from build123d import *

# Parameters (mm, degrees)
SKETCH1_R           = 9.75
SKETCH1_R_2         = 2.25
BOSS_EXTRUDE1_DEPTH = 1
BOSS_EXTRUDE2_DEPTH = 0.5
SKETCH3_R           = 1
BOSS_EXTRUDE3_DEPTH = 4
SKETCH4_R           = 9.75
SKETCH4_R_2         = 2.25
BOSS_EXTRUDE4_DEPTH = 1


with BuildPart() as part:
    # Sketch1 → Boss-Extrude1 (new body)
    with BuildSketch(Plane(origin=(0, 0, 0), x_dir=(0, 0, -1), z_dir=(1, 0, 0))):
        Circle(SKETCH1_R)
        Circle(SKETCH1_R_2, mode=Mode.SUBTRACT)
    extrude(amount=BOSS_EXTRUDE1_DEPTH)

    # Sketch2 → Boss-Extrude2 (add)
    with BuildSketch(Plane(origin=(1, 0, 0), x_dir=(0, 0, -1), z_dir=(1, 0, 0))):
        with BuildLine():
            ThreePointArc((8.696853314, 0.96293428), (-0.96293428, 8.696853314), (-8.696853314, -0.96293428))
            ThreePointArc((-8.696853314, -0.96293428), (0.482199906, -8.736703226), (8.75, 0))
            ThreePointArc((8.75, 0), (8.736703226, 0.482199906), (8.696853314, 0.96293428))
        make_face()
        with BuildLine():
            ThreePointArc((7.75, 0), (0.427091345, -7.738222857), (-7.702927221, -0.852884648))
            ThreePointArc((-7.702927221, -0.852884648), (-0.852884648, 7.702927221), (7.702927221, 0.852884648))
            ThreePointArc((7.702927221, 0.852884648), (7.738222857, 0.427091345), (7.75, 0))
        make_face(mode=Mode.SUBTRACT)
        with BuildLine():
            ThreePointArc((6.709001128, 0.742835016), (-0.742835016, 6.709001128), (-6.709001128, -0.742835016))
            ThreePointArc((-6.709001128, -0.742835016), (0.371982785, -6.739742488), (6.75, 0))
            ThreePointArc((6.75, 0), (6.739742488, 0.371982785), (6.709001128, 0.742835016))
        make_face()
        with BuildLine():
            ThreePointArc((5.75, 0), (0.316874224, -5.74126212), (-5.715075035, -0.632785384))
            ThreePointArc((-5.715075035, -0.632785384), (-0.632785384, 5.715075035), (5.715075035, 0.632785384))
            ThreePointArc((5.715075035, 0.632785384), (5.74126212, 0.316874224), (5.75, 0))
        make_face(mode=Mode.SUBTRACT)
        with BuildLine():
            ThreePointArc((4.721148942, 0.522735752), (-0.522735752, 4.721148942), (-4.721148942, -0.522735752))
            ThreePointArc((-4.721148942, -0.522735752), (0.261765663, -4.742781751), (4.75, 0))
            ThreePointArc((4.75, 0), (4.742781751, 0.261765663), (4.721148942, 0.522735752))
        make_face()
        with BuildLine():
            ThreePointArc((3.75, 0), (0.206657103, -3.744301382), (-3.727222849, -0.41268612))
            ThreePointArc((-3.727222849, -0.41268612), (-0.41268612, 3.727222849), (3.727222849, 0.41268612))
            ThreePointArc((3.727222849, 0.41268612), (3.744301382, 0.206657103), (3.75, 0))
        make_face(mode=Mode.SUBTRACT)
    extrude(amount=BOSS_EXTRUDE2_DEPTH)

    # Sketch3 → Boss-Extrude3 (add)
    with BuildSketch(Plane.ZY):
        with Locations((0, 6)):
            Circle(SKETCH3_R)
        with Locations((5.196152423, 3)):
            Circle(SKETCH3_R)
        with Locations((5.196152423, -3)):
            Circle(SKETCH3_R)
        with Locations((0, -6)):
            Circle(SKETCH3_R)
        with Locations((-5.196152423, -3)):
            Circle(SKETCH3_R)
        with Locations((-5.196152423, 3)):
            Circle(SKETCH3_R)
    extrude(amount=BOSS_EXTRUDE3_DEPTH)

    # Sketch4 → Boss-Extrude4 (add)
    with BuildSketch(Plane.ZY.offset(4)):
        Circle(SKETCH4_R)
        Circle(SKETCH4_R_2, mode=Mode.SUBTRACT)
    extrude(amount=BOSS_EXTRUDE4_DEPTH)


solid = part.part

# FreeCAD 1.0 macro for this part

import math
import FreeCAD as App
import Part
import Sketcher
Q = App.Units.Quantity

doc = App.newDocument("Part")
params = doc.addObject("Spreadsheet::Sheet", "Params")
for row, (alias, value) in enumerate([
    ("sketch1_diameter", "19.5 mm"),
    ("sketch1_diameter2", "4.5 mm"),
    ("pad1_length", "1 mm"),
    ("sketch2_radius", "8.75 mm"),
    ("sketch2_radius2", "7.75 mm"),
    ("sketch2_radius3", "6.75 mm"),
    ("sketch2_radius4", "5.75 mm"),
    ("sketch2_radius5", "4.75 mm"),
    ("pad2_length", "0.5 mm"),
    ("sketch3_diameter", "2 mm"),
    ("pad3_length", "4 mm"),
    ("sketch4_diameter", "19.5 mm"),
    ("sketch4_diameter2", "4.5 mm"),
    ("pad4_length", "1 mm"),
], start=1):
    params.set(f"A{row}", alias)
    params.set(f"B{row}", "=" + value)
    params.setAlias(f"B{row}", alias)

body = doc.addObject("PartDesign::Body", "Body")

sketch1 = body.newObject("Sketcher::SketchObject", "Sketch")
sketch1.AttachmentSupport = (doc.getObject("YZ_Plane"), [""])
sketch1.MapMode = "FlatFace"
sketch1.addGeometry(Part.Circle(App.Vector(0, 0, 0), App.Vector(0, 0, 1), 9.8), False)
sketch1.addGeometry(Part.Circle(App.Vector(0, 0, 0), App.Vector(0, 0, 1), 2.2), False)
sketch1.addConstraint(Sketcher.Constraint("Coincident", 0, 3, -1, 1))
sketch1.addConstraint(Sketcher.Constraint("Coincident", 1, 3, -1, 1))
sketch1.addConstraint(Sketcher.Constraint("Diameter", 0, Q("19.5 mm")))
sketch1.addConstraint(Sketcher.Constraint("Diameter", 1, Q("4.5 mm")))
sketch1.setExpression("Constraints[2]", "Params.sketch1_diameter")
sketch1.setExpression("Constraints[3]", "Params.sketch1_diameter2")
pad1 = body.newObject("PartDesign::Pad", "Pad")
pad1.Profile = sketch1
pad1.setExpression("Length", "Params.pad1_length")

sketch2 = body.newObject("Sketcher::SketchObject", "Sketch001")
sketch2.AttachmentSupport = (doc.getObject("YZ_Plane"), [""])
sketch2.MapMode = "FlatFace"
sketch2.AttachmentOffset = App.Placement(App.Vector(0, 0, 1), App.Rotation())
sketch2.addGeometry(Part.ArcOfCircle(Part.Circle(App.Vector(0, 0, 0), App.Vector(0, 0, 1), 8.75), math.radians(-84), math.radians(96)), False)
sketch2.addGeometry(Part.ArcOfCircle(Part.Circle(App.Vector(0, 0, 0), App.Vector(0, 0, 1), 8.75), math.radians(96), math.radians(270)), False)
sketch2.addGeometry(Part.ArcOfCircle(Part.Circle(App.Vector(0, 0, 0), App.Vector(0, 0, 1), 8.75), math.radians(-90), math.radians(-83.68)), False)
sketch2.addGeometry(Part.ArcOfCircle(Part.Circle(App.Vector(0, 0, 0), App.Vector(0, 0, 1), 7.75), math.radians(-90), math.radians(-83.68)), False)
sketch2.addGeometry(Part.ArcOfCircle(Part.Circle(App.Vector(0, 0, 0), App.Vector(0, 0, 1), 7.75), math.radians(96), math.radians(270)), False)
sketch2.addGeometry(Part.ArcOfCircle(Part.Circle(App.Vector(0, 0, 0), App.Vector(0, 0, 1), 7.75), math.radians(-84), math.radians(96)), False)
sketch2.addGeometry(Part.ArcOfCircle(Part.Circle(App.Vector(0, 0, 0), App.Vector(0, 0, 1), 6.75), math.radians(-84), math.radians(96)), False)
sketch2.addGeometry(Part.ArcOfCircle(Part.Circle(App.Vector(0, 0, 0), App.Vector(0, 0, 1), 6.75), math.radians(96), math.radians(270)), False)
sketch2.addGeometry(Part.ArcOfCircle(Part.Circle(App.Vector(0, 0, 0), App.Vector(0, 0, 1), 6.75), math.radians(-90), math.radians(-83.68)), False)
sketch2.addGeometry(Part.ArcOfCircle(Part.Circle(App.Vector(0, 0, 0), App.Vector(0, 0, 1), 5.75), math.radians(-90), math.radians(-83.68)), False)
sketch2.addGeometry(Part.ArcOfCircle(Part.Circle(App.Vector(0, 0, 0), App.Vector(0, 0, 1), 5.75), math.radians(96), math.radians(270)), False)
sketch2.addGeometry(Part.ArcOfCircle(Part.Circle(App.Vector(0, 0, 0), App.Vector(0, 0, 1), 5.75), math.radians(-84), math.radians(96)), False)
sketch2.addGeometry(Part.ArcOfCircle(Part.Circle(App.Vector(0, 0, 0), App.Vector(0, 0, 1), 4.75), math.radians(-84), math.radians(96)), False)
sketch2.addGeometry(Part.ArcOfCircle(Part.Circle(App.Vector(0, 0, 0), App.Vector(0, 0, 1), 4.75), math.radians(96), math.radians(270)), False)
sketch2.addGeometry(Part.ArcOfCircle(Part.Circle(App.Vector(0, 0, 0), App.Vector(0, 0, 1), 4.75), math.radians(-90), math.radians(-83.68)), False)
sketch2.addGeometry(Part.ArcOfCircle(Part.Circle(App.Vector(0, 0, 0), App.Vector(0, 0, 1), 3.75), math.radians(-90), math.radians(-83.68)), False)
sketch2.addGeometry(Part.ArcOfCircle(Part.Circle(App.Vector(0, 0, 0), App.Vector(0, 0, 1), 3.75), math.radians(96), math.radians(270)), False)
sketch2.addGeometry(Part.ArcOfCircle(Part.Circle(App.Vector(0, 0, 0), App.Vector(0, 0, 1), 3.75), math.radians(-84), math.radians(96)), False)
sketch2.addConstraint(Sketcher.Constraint("Tangent", 0, 2, 1, 1))
sketch2.addConstraint(Sketcher.Constraint("Tangent", 1, 2, 2, 1))
sketch2.addConstraint(Sketcher.Constraint("Tangent", 2, 2, 0, 1))
sketch2.addConstraint(Sketcher.Constraint("Tangent", 3, 1, 4, 2))
sketch2.addConstraint(Sketcher.Constraint("Tangent", 4, 1, 5, 2))
sketch2.addConstraint(Sketcher.Constraint("Tangent", 5, 1, 3, 2))
sketch2.addConstraint(Sketcher.Constraint("Tangent", 6, 2, 7, 1))
sketch2.addConstraint(Sketcher.Constraint("Tangent", 7, 2, 8, 1))
sketch2.addConstraint(Sketcher.Constraint("Tangent", 8, 2, 6, 1))
sketch2.addConstraint(Sketcher.Constraint("Tangent", 9, 1, 10, 2))
sketch2.addConstraint(Sketcher.Constraint("Tangent", 10, 1, 11, 2))
sketch2.addConstraint(Sketcher.Constraint("Tangent", 11, 1, 9, 2))
sketch2.addConstraint(Sketcher.Constraint("Tangent", 12, 2, 13, 1))
sketch2.addConstraint(Sketcher.Constraint("Tangent", 13, 2, 14, 1))
sketch2.addConstraint(Sketcher.Constraint("Tangent", 14, 2, 12, 1))
sketch2.addConstraint(Sketcher.Constraint("Tangent", 15, 1, 16, 2))
sketch2.addConstraint(Sketcher.Constraint("Tangent", 16, 1, 17, 2))
sketch2.addConstraint(Sketcher.Constraint("Tangent", 17, 1, 15, 2))
sketch2.addConstraint(Sketcher.Constraint("Coincident", 0, 3, -1, 1))
sketch2.addConstraint(Sketcher.Constraint("Coincident", 3, 3, -1, 1))
sketch2.addConstraint(Sketcher.Constraint("Coincident", 6, 3, -1, 1))
sketch2.addConstraint(Sketcher.Constraint("Coincident", 9, 3, -1, 1))
sketch2.addConstraint(Sketcher.Constraint("Coincident", 12, 3, -1, 1))
sketch2.addConstraint(Sketcher.Constraint("Coincident", 15, 3, -1, 1))
sketch2.addConstraint(Sketcher.Constraint("PointOnObject", 1, 2, -2))
sketch2.addConstraint(Sketcher.Constraint("PointOnObject", 3, 1, -2))
sketch2.addConstraint(Sketcher.Constraint("PointOnObject", 7, 2, -2))
sketch2.addConstraint(Sketcher.Constraint("PointOnObject", 9, 1, -2))
sketch2.addConstraint(Sketcher.Constraint("PointOnObject", 13, 2, -2))
sketch2.addConstraint(Sketcher.Constraint("PointOnObject", 15, 1, -2))
sketch2.addConstraint(Sketcher.Constraint("Radius", 0, Q("8.75 mm")))
sketch2.addConstraint(Sketcher.Constraint("Radius", 3, Q("7.75 mm")))
sketch2.addConstraint(Sketcher.Constraint("Radius", 6, Q("6.75 mm")))
sketch2.addConstraint(Sketcher.Constraint("Radius", 9, Q("5.75 mm")))
sketch2.addConstraint(Sketcher.Constraint("Radius", 12, Q("4.75 mm")))
sketch2.addConstraint(Sketcher.Constraint("Radius", 15, Q("3.75 mm")))
sketch2.addConstraint(Sketcher.Constraint("DistanceY", -1, 1, 6, 2, Q("6.709001 mm")))
sketch2.addConstraint(Sketcher.Constraint("DistanceY", 8, 2, -1, 1, Q("6.709001 mm")))
sketch2.addConstraint(Sketcher.Constraint("DistanceX", 0, 2, 6, 2, Q("0.220099 mm")))
sketch2.addConstraint(Sketcher.Constraint("DistanceX", 8, 2, 2, 2, Q("0.220099 mm")))
sketch2.addConstraint(Sketcher.Constraint("DistanceX", 4, 1, 10, 1, Q("0.220099 mm")))
sketch2.addConstraint(Sketcher.Constraint("DistanceX", 11, 1, 5, 1, Q("0.220099 mm")))
sketch2.addConstraint(Sketcher.Constraint("DistanceX", 6, 2, 12, 2, Q("0.220099 mm")))
sketch2.addConstraint(Sketcher.Constraint("DistanceX", 14, 2, 8, 2, Q("0.220099 mm")))
sketch2.addConstraint(Sketcher.Constraint("DistanceX", 10, 1, 16, 1, Q("0.220099 mm")))
sketch2.addConstraint(Sketcher.Constraint("DistanceX", 17, 1, 11, 1, Q("0.220099 mm")))
sketch2.addConstraint(Sketcher.Constraint("DistanceX", 0, 2, 4, 1, Q("0.11005 mm")))
sketch2.addConstraint(Sketcher.Constraint("DistanceX", 5, 1, 2, 2, Q("0.11005 mm")))
sketch2.setExpression("Constraints[30]", "Params.sketch2_radius")
sketch2.setExpression("Constraints[31]", "Params.sketch2_radius2")
sketch2.setExpression("Constraints[32]", "Params.sketch2_radius3")
sketch2.setExpression("Constraints[33]", "Params.sketch2_radius4")
sketch2.setExpression("Constraints[34]", "Params.sketch2_radius5")
pad2 = body.newObject("PartDesign::Pad", "Pad001")
pad2.Profile = sketch2
pad2.setExpression("Length", "Params.pad2_length")

sketch3 = body.newObject("Sketcher::SketchObject", "Sketch002")
sketch3.AttachmentSupport = (doc.getObject("YZ_Plane"), [""])
sketch3.MapMode = "FlatFace"
sketch3.addGeometry(Part.Circle(App.Vector(6, 0, 0), App.Vector(0, 0, 1), 1), False)
sketch3.addGeometry(Part.Circle(App.Vector(3, 5.2, 0), App.Vector(0, 0, 1), 1), False)
sketch3.addGeometry(Part.Circle(App.Vector(-3, 5.2, 0), App.Vector(0, 0, 1), 1), False)
sketch3.addGeometry(Part.Circle(App.Vector(-6, 0, 0), App.Vector(0, 0, 1), 1), False)
sketch3.addGeometry(Part.Circle(App.Vector(-3, -5.2, 0), App.Vector(0, 0, 1), 1), False)
sketch3.addGeometry(Part.Circle(App.Vector(3, -5.2, 0), App.Vector(0, 0, 1), 1), False)
sketch3.addConstraint(Sketcher.Constraint("Equal", 0, 1))
sketch3.addConstraint(Sketcher.Constraint("Equal", 1, 2))
sketch3.addConstraint(Sketcher.Constraint("Equal", 2, 3))
sketch3.addConstraint(Sketcher.Constraint("Equal", 3, 4))
sketch3.addConstraint(Sketcher.Constraint("Equal", 4, 5))
sketch3.addConstraint(Sketcher.Constraint("Symmetric", 0, 3, 3, 3, -1, 1))
sketch3.addConstraint(Sketcher.Constraint("Symmetric", 1, 3, 4, 3, -1, 1))
sketch3.addConstraint(Sketcher.Constraint("Symmetric", 2, 3, 5, 3, -1, 1))
sketch3.addConstraint(Sketcher.Constraint("Symmetric", 1, 3, 2, 3, -2))
sketch3.addConstraint(Sketcher.Constraint("PointOnObject", 0, 3, -1))
sketch3.addConstraint(Sketcher.Constraint("Diameter", 0, Q("2 mm")))
sketch3.addConstraint(Sketcher.Constraint("DistanceX", -1, 1, 0, 3, Q("6 mm")))
sketch3.addConstraint(Sketcher.Constraint("DistanceX", -1, 1, 1, 3, Q("3 mm")))
sketch3.addConstraint(Sketcher.Constraint("DistanceY", -1, 1, 1, 3, Q("5.196152 mm")))
sketch3.setExpression("Constraints[10]", "Params.sketch3_diameter")
pad3 = body.newObject("PartDesign::Pad", "Pad002")
pad3.Profile = sketch3
pad3.setExpression("Length", "Params.pad3_length")
pad3.Reversed = True

sketch4 = body.newObject("Sketcher::SketchObject", "Sketch003")
sketch4.AttachmentSupport = (doc.getObject("YZ_Plane"), [""])
sketch4.MapMode = "FlatFace"
sketch4.AttachmentOffset = App.Placement(App.Vector(0, 0, -4), App.Rotation())
sketch4.addGeometry(Part.Circle(App.Vector(0, 0, 0), App.Vector(0, 0, 1), 9.8), False)
sketch4.addGeometry(Part.Circle(App.Vector(0, 0, 0), App.Vector(0, 0, 1), 2.2), False)
sketch4.addConstraint(Sketcher.Constraint("Coincident", 0, 3, -1, 1))
sketch4.addConstraint(Sketcher.Constraint("Coincident", 1, 3, -1, 1))
sketch4.addConstraint(Sketcher.Constraint("Diameter", 0, Q("19.5 mm")))
sketch4.addConstraint(Sketcher.Constraint("Diameter", 1, Q("4.5 mm")))
sketch4.setExpression("Constraints[2]", "Params.sketch4_diameter")
sketch4.setExpression("Constraints[3]", "Params.sketch4_diameter2")
pad4 = body.newObject("PartDesign::Pad", "Pad003")
pad4.Profile = sketch4
pad4.setExpression("Length", "Params.pad4_length")
pad4.Reversed = True

doc.recompute()
